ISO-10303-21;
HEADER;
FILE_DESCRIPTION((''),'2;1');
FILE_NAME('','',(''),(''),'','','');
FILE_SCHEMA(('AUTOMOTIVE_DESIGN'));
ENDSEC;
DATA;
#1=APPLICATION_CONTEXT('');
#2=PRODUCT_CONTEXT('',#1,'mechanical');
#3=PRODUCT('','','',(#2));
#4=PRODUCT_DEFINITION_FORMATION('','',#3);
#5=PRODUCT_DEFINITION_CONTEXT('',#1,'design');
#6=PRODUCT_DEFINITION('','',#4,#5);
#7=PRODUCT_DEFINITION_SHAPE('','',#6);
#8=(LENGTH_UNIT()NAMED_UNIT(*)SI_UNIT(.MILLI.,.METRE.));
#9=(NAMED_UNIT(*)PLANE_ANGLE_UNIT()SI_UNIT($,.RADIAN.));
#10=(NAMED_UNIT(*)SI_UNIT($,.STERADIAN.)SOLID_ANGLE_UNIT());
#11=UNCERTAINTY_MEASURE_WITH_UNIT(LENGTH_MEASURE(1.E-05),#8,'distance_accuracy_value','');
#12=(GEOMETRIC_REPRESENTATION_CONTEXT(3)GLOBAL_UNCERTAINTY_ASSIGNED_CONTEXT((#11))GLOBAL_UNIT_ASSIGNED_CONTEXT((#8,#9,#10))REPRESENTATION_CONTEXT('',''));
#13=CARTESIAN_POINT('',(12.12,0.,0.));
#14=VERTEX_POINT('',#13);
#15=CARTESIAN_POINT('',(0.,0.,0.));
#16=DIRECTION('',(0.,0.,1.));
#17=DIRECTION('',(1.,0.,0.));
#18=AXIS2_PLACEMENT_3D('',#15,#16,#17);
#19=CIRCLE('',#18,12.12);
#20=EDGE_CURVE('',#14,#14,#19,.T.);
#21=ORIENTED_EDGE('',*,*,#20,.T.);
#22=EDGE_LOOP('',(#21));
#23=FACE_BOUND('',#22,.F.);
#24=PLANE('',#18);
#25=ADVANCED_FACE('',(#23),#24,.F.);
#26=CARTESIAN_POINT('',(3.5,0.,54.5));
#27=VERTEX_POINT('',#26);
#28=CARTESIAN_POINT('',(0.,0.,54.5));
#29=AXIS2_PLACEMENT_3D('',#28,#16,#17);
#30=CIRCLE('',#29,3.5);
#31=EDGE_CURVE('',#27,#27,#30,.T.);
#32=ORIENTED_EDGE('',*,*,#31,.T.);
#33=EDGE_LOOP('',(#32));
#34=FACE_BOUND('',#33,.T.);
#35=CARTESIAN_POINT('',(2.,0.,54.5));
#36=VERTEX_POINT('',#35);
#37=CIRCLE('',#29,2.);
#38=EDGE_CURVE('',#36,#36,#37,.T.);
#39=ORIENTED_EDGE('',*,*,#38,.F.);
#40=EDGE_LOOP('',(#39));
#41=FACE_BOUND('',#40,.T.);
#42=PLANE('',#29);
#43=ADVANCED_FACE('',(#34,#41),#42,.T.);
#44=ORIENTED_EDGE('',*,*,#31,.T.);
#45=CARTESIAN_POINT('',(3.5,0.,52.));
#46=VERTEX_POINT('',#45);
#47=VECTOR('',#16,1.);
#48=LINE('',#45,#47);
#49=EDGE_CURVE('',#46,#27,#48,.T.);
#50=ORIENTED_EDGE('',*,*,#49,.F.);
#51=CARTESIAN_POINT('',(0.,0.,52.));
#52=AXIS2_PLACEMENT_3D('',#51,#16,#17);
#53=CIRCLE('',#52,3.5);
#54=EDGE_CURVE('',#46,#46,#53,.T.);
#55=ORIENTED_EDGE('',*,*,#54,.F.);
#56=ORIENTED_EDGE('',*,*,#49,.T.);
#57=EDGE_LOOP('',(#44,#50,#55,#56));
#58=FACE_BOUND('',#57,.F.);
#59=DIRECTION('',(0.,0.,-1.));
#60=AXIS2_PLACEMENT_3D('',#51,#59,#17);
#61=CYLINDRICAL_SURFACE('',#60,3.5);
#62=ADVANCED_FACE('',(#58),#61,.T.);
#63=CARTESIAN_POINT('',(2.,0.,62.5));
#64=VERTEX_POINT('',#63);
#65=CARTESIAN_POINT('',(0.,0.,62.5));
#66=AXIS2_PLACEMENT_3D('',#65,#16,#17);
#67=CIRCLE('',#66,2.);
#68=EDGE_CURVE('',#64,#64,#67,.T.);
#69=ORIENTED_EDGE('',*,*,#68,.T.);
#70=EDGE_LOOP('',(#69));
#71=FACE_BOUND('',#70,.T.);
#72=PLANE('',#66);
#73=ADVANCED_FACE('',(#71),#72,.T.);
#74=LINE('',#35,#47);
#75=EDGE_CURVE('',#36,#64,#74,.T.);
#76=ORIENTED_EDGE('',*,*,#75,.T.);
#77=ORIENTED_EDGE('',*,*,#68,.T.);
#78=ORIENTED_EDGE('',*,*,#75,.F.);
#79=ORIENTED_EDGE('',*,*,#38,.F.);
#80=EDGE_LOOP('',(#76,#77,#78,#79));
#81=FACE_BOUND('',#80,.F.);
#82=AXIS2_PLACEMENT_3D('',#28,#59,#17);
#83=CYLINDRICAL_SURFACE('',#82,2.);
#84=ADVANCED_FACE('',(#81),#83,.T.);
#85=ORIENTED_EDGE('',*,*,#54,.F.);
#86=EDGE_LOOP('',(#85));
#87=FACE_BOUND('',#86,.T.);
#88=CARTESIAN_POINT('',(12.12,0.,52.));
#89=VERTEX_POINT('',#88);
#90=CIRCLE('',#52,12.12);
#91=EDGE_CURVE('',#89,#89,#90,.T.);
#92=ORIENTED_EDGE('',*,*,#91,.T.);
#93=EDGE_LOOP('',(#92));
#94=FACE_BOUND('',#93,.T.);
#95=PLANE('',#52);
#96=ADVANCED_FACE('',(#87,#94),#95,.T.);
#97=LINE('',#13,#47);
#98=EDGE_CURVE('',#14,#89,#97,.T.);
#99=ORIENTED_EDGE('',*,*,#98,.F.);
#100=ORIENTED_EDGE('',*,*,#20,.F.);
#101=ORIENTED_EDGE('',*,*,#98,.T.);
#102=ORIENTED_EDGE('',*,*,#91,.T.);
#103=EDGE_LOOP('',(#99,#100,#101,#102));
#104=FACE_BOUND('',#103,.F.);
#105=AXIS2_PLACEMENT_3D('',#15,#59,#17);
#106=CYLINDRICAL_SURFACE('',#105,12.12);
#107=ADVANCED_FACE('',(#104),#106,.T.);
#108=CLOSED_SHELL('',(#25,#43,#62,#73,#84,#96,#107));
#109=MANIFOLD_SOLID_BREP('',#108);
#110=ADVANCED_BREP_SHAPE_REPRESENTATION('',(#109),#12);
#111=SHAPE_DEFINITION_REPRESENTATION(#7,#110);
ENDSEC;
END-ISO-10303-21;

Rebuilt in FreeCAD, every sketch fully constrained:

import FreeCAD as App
import Part
import Sketcher
Q = App.Units.Quantity

doc = App.newDocument("Part")
body = doc.addObject("PartDesign::Body", "Body")

sketch1 = body.newObject("Sketcher::SketchObject", "Sketch")
sketch1.AttachmentSupport = (doc.getObject("XY_Plane"), [""])
sketch1.MapMode = "FlatFace"
sketch1.addGeometry(Part.Circle(App.Vector(0, 0, 0), App.Vector(0, 0, 1), 12), False)
sketch1.addConstraint([
    Sketcher.Constraint("Coincident", 0, 3, -1, 1),
    Sketcher.Constraint("Diameter", 0, Q("24.24 mm")),
])
pad1 = body.newObject("PartDesign::Pad", "Pad")
pad1.Profile = sketch1
pad1.Length = 52

sketch2 = body.newObject("Sketcher::SketchObject", "Sketch001")
sketch2.AttachmentSupport = (doc.getObject("XY_Plane"), [""])
sketch2.MapMode = "FlatFace"
sketch2.AttachmentOffset = App.Placement(App.Vector(0, 0, 52), App.Rotation())
sketch2.addGeometry(Part.Circle(App.Vector(0, 0, 0), App.Vector(0, 0, 1), 3.5), False)
sketch2.addConstraint([
    Sketcher.Constraint("Coincident", 0, 3, -1, 1),
    Sketcher.Constraint("Diameter", 0, Q("7 mm")),
])
pad2 = body.newObject("PartDesign::Pad", "Pad001")
pad2.Profile = sketch2
pad2.Length = 2.5

sketch3 = body.newObject("Sketcher::SketchObject", "Sketch002")
sketch3.AttachmentSupport = (doc.getObject("XY_Plane"), [""])
sketch3.MapMode = "FlatFace"
sketch3.AttachmentOffset = App.Placement(App.Vector(0, 0, 54.5), App.Rotation())
sketch3.addGeometry(Part.Circle(App.Vector(0, 0, 0), App.Vector(0, 0, 1), 2), False)
sketch3.addConstraint([
    Sketcher.Constraint("Coincident", 0, 3, -1, 1),
    Sketcher.Constraint("Diameter", 0, Q("4 mm")),
])
pad3 = body.newObject("PartDesign::Pad", "Pad002")
pad3.Profile = sketch3
pad3.Length = 8

doc.recompute()
